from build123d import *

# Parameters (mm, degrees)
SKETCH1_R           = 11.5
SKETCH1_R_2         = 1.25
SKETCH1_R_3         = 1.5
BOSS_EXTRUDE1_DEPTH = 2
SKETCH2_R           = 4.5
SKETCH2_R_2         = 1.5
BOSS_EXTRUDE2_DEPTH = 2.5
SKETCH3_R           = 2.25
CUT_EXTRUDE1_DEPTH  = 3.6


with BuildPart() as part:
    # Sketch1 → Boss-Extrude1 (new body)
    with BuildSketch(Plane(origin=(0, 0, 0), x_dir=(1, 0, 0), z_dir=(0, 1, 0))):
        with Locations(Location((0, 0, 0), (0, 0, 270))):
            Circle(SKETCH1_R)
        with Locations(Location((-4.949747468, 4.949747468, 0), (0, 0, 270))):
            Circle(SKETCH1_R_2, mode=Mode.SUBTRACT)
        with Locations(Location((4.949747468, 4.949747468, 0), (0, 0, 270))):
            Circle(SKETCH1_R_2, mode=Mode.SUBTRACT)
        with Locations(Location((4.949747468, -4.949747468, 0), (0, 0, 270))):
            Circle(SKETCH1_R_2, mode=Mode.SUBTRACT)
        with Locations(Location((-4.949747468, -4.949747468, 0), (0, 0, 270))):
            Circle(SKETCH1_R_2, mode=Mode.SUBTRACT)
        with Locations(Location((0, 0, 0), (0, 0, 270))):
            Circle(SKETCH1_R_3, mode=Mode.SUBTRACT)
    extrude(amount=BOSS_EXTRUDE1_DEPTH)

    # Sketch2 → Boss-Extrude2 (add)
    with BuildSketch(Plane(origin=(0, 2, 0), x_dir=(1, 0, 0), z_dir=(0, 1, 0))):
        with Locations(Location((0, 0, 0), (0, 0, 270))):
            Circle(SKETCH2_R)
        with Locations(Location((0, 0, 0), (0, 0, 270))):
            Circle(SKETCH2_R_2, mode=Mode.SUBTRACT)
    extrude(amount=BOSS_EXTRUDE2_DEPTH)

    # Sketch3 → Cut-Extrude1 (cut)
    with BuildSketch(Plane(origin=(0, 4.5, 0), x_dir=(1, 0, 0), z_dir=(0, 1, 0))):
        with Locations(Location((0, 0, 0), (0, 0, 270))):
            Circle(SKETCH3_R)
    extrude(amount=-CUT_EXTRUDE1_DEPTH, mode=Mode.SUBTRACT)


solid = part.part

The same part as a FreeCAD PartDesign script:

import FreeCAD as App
import Part
import Sketcher

V = App.Vector
Q = App.Units.Quantity

doc = App.newDocument("Part")
params = doc.addObject("Spreadsheet::Sheet", "Params")
for row, (alias, value) in enumerate([
    ("sketch1_diameter", "23 mm"),
    ("sketch1_diameter2", "3 mm"),
    ("sketch1_diameter3", "2.5 mm"),
    ("pad1_length", "2 mm"),
    ("sketch2_diameter", "9 mm"),
    ("sketch2_diameter2", "3 mm"),
    ("pad2_length", "2.5 mm"),
    ("sketch3_diameter", "4.5 mm"),
    ("pocket1_length", "3.6 mm"),
], start=1):
    params.set(f"A{row}", alias)
    params.set(f"B{row}", "=" + value)
    params.setAlias(f"B{row}", alias)

body = doc.addObject("PartDesign::Body", "Body")

# Sketch on XZ plane
sketch1 = doc.addObject("Sketcher::SketchObject", "Sketch")
body.addObject(sketch1)
sketch1.AttachmentSupport = (doc.XZ_Plane, [""])
sketch1.MapMode = "FlatFace"
sketch1.addGeometry(Part.Circle(V(0, 0, 0), V(0, 0, 1), 11.5), False)
sketch1.addGeometry(Part.Circle(V(-4.949747, -4.949747, 0), V(0, 0, 1), 1.25), False)
sketch1.addGeometry(Part.Circle(V(-4.949747, 4.949747, 0), V(0, 0, 1), 1.25), False)
sketch1.addGeometry(Part.Circle(V(4.949747, -4.949747, 0), V(0, 0, 1), 1.25), False)
sketch1.addGeometry(Part.Circle(V(0, 0, 0), V(0, 0, 1), 1.5), False)
sketch1.addGeometry(Part.Circle(V(4.949747, 4.949747, 0), V(0, 0, 1), 1.25), False)
sketch1.addConstraint(Sketcher.Constraint("Coincident", 0, 3, -1, 1))
sketch1.addConstraint(Sketcher.Constraint("Coincident", 4, 3, -1, 1))
sketch1.addConstraint(Sketcher.Constraint("Equal", 1, 2))
sketch1.addConstraint(Sketcher.Constraint("Equal", 2, 3))
sketch1.addConstraint(Sketcher.Constraint("Equal", 3, 5))
sketch1.addConstraint(Sketcher.Constraint("Symmetric", 2, 3, 3, 3, -1, 1))
sketch1.addConstraint(Sketcher.Constraint("Symmetric", 1, 3, 5, 3, -1, 1))
sketch1.addConstraint(Sketcher.Constraint("Symmetric", 1, 3, 3, 3, -2))
sketch1.addConstraint(Sketcher.Constraint("Diameter", 0, Q("23 mm")))
sketch1.addConstraint(Sketcher.Constraint("Diameter", 4, Q("3 mm")))
sketch1.addConstraint(Sketcher.Constraint("Diameter", 1, Q("2.5 mm")))
sketch1.addConstraint(Sketcher.Constraint("DistanceX", 1, 3, -1, 1, Q("4.949747 mm")))
sketch1.addConstraint(Sketcher.Constraint("DistanceY", 1, 3, -1, 1, Q("4.949747 mm")))
sketch1.setExpression("Constraints[8]", "Params.sketch1_diameter")
sketch1.setExpression("Constraints[9]", "Params.sketch1_diameter2")
sketch1.setExpression("Constraints[10]", "Params.sketch1_diameter3")
pad1 = doc.addObject("PartDesign::Pad", "Pad")
body.addObject(pad1)
pad1.Profile = sketch1
pad1.setExpression("Length", "Params.pad1_length")
pad1.Reversed = True

# Sketch on XZ plane
sketch2 = doc.addObject("Sketcher::SketchObject", "Sketch001")
body.addObject(sketch2)
sketch2.AttachmentSupport = (doc.XZ_Plane, [""])
sketch2.MapMode = "FlatFace"
sketch2.AttachmentOffset = App.Placement(V(0, 0, -2), App.Rotation())
sketch2.addGeometry(Part.Circle(V(0, 0, 0), V(0, 0, 1), 4.5), False)
sketch2.addGeometry(Part.Circle(V(0, 0, 0), V(0, 0, 1), 1.5), False)
sketch2.addConstraint(Sketcher.Constraint("Coincident", 0, 3, -1, 1))
sketch2.addConstraint(Sketcher.Constraint("Coincident", 1, 3, -1, 1))
sketch2.addConstraint(Sketcher.Constraint("Diameter", 0, Q("9 mm")))
sketch2.addConstraint(Sketcher.Constraint("Diameter", 1, Q("3 mm")))
sketch2.setExpression("Constraints[2]", "Params.sketch2_diameter")
sketch2.setExpression("Constraints[3]", "Params.sketch2_diameter2")
pad2 = doc.addObject("PartDesign::Pad", "Pad001")
body.addObject(pad2)
pad2.Profile = sketch2
pad2.setExpression("Length", "Params.pad2_length")
pad2.Reversed = True

# Sketch on XZ plane
sketch3 = doc.addObject("Sketcher::SketchObject", "Sketch002")
body.addObject(sketch3)
sketch3.AttachmentSupport = (doc.XZ_Plane, [""])
sketch3.MapMode = "FlatFace"
sketch3.AttachmentOffset = App.Placement(V(0, 0, -4.5), App.Rotation())
sketch3.addGeometry(Part.Circle(V(0, 0, 0), V(0, 0, 1), 2.25), False)
sketch3.addConstraint(Sketcher.Constraint("Coincident", 0, 3, -1, 1))
sketch3.addConstraint(Sketcher.Constraint("Diameter", 0, Q("4.5 mm")))
sketch3.setExpression("Constraints[1]", "Params.sketch3_diameter")
pocket1 = doc.addObject("PartDesign::Pocket", "Pocket")
body.addObject(pocket1)
pocket1.Profile = sketch3
pocket1.setExpression("Length", "Params.pocket1_length")
pocket1.Reversed = True

doc.recompute()
